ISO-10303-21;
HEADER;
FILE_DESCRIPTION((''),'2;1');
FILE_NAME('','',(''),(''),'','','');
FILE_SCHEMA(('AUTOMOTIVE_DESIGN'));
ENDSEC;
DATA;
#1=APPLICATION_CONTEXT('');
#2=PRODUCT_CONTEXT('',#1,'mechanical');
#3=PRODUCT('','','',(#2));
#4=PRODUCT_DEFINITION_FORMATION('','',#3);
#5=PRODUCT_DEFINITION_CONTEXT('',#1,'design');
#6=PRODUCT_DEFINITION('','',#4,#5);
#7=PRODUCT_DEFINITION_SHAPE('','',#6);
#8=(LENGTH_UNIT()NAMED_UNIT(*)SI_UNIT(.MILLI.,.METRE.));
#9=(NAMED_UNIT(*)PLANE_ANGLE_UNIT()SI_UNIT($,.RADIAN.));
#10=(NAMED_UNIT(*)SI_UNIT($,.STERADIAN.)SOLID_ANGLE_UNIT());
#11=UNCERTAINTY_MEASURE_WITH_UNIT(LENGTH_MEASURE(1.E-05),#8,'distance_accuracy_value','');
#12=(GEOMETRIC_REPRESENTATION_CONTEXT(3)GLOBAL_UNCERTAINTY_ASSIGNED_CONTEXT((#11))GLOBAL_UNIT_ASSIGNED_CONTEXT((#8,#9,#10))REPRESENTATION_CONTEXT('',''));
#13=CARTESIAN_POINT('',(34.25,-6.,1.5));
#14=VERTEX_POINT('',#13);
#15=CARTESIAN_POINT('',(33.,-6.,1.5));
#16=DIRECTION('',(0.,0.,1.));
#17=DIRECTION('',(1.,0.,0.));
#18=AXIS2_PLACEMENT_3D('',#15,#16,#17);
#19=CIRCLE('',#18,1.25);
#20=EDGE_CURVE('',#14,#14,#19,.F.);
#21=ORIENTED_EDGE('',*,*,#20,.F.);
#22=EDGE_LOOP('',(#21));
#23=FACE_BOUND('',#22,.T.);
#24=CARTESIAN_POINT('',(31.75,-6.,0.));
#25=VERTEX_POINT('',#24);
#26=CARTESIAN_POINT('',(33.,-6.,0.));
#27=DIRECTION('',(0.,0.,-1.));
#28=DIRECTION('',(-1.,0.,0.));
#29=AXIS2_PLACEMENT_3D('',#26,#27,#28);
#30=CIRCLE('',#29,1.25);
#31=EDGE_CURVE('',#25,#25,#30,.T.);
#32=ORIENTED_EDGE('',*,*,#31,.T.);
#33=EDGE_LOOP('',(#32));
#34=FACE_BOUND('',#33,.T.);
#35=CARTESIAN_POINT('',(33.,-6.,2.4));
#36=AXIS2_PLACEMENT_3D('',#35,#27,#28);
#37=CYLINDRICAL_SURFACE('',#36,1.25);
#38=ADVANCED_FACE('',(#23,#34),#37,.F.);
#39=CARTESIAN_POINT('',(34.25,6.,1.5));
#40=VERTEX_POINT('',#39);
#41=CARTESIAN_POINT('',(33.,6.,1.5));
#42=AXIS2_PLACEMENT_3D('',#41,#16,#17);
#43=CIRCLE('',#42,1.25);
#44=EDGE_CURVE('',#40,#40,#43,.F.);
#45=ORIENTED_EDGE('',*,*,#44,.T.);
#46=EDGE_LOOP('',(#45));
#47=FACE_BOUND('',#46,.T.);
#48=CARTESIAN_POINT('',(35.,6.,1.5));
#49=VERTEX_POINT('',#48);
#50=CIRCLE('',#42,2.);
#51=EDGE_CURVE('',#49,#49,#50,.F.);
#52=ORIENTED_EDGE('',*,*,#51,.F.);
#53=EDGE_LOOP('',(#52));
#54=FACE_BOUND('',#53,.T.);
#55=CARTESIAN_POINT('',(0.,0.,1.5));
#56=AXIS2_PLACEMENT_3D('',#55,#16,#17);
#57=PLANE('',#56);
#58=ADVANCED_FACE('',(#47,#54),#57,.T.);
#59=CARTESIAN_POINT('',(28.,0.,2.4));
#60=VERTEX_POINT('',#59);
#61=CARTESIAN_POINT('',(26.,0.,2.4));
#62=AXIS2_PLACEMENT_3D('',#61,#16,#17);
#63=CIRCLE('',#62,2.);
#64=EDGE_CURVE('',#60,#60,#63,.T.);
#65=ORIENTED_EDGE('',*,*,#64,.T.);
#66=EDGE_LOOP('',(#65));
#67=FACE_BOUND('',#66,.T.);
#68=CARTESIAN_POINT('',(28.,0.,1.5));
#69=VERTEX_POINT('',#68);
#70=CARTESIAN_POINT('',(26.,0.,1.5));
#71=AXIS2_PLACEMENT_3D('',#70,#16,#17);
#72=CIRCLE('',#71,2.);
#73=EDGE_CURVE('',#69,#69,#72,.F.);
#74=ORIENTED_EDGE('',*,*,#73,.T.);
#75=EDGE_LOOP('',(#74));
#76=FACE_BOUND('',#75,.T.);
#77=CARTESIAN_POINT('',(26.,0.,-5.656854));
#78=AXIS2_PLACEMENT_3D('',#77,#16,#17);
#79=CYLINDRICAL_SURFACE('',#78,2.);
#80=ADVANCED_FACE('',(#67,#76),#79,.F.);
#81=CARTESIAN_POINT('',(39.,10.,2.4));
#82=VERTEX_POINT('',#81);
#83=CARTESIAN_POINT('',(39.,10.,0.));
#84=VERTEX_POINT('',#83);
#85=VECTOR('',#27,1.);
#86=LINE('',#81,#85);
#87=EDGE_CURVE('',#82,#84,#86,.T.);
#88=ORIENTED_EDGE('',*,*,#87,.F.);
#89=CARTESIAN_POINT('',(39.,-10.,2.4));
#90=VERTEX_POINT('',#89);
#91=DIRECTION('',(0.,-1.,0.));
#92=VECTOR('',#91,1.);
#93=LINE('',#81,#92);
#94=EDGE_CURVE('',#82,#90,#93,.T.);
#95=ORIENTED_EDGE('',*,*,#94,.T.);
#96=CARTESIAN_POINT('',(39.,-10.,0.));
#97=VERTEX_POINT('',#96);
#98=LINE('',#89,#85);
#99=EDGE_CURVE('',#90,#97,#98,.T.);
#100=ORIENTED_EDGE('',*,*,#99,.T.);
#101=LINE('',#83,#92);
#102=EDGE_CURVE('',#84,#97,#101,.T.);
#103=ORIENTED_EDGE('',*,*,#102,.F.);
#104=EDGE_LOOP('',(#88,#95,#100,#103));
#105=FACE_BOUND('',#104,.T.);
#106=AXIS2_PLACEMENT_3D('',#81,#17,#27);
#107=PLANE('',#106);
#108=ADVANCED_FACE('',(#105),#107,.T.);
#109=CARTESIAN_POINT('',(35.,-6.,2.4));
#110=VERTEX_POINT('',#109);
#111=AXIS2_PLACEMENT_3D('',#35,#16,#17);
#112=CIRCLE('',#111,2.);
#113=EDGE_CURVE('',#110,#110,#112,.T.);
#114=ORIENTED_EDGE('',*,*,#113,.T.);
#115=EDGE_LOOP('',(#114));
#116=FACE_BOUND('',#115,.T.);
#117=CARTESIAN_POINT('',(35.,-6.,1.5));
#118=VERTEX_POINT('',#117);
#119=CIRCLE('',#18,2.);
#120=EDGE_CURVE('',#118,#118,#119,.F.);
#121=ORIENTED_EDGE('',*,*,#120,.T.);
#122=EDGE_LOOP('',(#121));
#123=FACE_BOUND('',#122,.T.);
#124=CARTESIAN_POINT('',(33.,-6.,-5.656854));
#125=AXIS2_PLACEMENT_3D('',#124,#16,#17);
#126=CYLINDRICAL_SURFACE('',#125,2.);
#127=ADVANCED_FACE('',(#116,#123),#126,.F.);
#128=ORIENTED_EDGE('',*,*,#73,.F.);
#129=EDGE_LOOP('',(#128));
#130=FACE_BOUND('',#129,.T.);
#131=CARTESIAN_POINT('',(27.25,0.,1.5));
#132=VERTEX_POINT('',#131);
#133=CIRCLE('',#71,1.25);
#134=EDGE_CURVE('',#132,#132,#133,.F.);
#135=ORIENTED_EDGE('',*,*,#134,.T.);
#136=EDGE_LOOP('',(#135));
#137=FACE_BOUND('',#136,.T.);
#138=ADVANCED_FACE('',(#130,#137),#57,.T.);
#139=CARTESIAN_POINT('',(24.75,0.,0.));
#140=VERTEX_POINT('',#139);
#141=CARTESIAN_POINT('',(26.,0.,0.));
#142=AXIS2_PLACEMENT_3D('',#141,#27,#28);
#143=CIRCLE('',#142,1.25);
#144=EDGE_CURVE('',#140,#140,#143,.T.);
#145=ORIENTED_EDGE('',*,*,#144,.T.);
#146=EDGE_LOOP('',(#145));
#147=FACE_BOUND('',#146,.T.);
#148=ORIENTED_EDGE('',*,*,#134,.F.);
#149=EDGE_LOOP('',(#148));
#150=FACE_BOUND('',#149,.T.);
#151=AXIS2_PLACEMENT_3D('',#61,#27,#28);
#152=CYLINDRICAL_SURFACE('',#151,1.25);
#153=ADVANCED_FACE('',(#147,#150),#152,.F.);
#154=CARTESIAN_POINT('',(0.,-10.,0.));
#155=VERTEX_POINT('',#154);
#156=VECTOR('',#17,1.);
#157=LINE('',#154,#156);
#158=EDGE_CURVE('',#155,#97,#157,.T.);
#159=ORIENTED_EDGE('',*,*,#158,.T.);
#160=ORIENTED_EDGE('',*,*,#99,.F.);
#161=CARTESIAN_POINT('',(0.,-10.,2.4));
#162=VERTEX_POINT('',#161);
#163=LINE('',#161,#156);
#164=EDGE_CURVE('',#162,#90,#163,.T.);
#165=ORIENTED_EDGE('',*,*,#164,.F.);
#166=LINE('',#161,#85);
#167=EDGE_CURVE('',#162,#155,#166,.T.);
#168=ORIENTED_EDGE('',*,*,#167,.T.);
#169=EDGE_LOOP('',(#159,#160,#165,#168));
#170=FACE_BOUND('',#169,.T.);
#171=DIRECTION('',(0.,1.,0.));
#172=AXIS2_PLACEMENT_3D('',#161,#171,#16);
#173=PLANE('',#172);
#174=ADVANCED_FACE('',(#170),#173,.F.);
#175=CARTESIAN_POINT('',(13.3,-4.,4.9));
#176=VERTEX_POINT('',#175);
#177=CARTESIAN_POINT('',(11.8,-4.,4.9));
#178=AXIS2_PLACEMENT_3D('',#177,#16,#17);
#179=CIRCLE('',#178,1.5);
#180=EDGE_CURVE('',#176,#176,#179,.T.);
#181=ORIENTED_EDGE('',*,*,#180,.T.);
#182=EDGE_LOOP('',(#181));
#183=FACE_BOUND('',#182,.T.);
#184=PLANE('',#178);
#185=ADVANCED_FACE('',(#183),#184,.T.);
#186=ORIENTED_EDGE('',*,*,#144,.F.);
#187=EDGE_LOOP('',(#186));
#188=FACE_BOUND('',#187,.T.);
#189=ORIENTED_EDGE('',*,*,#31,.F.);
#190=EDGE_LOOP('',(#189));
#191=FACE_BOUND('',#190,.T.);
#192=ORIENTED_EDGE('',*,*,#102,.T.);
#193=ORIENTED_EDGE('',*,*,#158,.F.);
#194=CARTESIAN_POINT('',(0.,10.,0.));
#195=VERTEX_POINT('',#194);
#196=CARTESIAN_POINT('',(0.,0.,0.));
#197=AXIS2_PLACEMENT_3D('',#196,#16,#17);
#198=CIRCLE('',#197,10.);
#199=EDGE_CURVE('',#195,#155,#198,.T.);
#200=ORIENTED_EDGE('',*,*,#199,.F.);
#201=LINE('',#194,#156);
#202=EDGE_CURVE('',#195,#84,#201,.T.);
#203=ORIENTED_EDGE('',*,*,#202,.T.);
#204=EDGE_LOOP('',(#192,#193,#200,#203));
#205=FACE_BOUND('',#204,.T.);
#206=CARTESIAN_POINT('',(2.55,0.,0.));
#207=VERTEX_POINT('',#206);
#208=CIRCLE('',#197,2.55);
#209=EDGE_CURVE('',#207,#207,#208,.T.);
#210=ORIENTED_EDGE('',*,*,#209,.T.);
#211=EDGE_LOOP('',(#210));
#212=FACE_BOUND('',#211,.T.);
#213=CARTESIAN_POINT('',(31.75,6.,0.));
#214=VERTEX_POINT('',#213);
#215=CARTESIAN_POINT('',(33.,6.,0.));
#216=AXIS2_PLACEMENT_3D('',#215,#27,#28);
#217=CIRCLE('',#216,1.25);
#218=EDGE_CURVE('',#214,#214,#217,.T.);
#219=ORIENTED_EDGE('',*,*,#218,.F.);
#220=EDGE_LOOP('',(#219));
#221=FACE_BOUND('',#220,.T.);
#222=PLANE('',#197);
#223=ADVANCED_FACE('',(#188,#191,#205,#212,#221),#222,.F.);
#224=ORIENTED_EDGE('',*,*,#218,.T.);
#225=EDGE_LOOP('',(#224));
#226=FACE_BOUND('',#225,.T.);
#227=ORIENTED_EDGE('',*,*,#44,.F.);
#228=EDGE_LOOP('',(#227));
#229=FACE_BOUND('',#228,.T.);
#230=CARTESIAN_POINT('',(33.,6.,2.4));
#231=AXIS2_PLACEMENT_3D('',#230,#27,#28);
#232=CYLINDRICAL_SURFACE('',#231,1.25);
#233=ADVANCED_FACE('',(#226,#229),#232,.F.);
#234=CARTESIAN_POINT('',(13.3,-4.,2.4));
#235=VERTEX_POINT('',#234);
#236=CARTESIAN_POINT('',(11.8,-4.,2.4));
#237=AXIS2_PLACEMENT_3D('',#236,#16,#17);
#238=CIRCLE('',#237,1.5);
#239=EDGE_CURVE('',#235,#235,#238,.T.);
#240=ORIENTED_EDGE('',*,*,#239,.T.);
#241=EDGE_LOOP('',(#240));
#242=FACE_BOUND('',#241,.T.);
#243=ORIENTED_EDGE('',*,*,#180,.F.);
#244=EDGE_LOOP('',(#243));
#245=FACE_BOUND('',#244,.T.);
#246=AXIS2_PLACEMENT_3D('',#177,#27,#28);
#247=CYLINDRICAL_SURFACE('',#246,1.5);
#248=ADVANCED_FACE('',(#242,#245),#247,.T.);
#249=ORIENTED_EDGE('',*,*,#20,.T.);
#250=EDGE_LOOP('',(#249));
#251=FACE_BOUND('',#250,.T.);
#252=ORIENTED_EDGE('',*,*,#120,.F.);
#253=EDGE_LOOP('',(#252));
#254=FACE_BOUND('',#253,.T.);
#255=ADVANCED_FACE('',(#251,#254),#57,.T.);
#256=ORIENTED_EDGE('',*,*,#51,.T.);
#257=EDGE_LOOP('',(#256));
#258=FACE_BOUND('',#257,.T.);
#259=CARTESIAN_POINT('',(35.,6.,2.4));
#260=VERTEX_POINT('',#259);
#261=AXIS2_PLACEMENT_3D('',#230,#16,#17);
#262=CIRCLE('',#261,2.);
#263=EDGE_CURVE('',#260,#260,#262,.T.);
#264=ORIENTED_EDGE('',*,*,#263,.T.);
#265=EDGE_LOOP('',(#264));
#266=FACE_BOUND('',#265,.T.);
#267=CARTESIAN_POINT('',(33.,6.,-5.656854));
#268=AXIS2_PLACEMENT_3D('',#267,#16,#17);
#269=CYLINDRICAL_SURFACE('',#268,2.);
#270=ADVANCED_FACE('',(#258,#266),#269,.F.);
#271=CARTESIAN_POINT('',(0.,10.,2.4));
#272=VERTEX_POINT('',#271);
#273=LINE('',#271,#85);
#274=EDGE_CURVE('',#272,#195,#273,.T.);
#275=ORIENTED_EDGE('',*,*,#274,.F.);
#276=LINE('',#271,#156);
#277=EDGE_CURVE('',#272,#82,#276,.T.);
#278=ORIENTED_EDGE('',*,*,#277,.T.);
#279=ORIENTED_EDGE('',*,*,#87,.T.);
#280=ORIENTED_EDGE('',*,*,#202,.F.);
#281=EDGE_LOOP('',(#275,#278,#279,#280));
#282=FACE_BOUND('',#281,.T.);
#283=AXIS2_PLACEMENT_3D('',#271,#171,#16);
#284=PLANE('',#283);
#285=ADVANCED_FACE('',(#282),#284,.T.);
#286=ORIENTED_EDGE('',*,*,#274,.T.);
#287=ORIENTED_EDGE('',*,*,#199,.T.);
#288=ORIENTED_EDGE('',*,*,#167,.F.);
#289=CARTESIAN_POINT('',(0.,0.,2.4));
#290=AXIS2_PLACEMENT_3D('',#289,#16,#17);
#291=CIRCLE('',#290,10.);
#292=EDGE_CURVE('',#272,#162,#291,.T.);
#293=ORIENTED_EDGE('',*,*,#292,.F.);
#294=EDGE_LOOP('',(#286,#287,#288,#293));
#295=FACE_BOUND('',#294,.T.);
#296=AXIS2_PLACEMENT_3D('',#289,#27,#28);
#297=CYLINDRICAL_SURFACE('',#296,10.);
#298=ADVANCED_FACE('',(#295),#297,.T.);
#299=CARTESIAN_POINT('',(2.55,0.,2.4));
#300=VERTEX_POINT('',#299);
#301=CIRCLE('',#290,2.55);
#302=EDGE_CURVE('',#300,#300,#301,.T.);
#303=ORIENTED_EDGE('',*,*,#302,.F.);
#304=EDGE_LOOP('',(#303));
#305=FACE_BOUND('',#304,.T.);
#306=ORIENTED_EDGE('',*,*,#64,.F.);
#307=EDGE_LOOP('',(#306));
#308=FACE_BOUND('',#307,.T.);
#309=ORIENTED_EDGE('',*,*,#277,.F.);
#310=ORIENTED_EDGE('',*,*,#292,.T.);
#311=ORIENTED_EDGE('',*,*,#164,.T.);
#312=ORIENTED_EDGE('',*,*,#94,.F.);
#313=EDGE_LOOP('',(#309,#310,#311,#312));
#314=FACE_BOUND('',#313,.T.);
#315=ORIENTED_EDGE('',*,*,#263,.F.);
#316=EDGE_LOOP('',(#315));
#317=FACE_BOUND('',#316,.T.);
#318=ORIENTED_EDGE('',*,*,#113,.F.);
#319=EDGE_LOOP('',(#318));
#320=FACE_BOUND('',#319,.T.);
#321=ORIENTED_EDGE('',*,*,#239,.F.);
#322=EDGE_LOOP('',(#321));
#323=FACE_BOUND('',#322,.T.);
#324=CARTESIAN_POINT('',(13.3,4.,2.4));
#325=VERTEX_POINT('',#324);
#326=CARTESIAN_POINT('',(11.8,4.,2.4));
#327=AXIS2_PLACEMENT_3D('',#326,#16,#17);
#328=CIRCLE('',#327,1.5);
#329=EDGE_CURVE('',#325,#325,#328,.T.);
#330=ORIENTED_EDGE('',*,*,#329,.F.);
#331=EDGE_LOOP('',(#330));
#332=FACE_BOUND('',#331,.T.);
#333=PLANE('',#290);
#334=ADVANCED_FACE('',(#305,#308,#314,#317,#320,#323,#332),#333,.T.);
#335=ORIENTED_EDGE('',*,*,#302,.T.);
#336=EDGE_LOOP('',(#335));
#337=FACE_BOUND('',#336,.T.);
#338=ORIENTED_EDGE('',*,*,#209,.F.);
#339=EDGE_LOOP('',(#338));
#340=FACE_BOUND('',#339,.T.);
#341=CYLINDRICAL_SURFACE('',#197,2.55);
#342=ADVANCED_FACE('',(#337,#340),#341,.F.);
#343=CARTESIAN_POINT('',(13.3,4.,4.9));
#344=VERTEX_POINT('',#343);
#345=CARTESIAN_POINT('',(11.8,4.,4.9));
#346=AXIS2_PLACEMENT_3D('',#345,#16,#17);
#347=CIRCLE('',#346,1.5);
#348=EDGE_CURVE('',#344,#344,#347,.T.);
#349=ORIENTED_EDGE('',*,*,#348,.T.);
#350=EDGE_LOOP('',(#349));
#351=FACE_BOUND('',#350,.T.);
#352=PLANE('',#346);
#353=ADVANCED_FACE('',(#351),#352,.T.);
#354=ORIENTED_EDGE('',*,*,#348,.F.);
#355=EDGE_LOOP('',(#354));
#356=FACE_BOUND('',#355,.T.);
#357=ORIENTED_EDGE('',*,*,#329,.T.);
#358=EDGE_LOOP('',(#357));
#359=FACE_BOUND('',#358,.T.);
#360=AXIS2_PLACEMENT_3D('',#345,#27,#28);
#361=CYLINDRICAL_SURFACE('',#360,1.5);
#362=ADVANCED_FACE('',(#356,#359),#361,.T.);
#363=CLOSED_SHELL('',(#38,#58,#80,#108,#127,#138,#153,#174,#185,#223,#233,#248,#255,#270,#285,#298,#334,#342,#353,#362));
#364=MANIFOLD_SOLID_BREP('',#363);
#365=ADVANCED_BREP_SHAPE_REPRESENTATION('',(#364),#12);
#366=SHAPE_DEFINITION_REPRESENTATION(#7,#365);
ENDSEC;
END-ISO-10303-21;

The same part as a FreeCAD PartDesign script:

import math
import FreeCAD as App
import Part
import Sketcher
Q = App.Units.Quantity

doc = App.newDocument("Part")
body = doc.addObject("PartDesign::Body", "Body")

sketch1 = doc.addObject("Sketcher::SketchObject", "Sketch")
body.addObject(sketch1)
sketch1.AttachmentSupport = (doc.XY_Plane, [""])
sketch1.MapMode = "FlatFace"
sketch1.addGeometry([
    Part.LineSegment(App.Vector(0, -10, 0), App.Vector(39, -10, 0)),
    Part.LineSegment(App.Vector(39, -10, 0), App.Vector(39, 10, 0)),
    Part.LineSegment(App.Vector(39, 10, 0), App.Vector(0, 10, 0)),
    Part.ArcOfCircle(Part.Circle(App.Vector(0, 0, 0), App.Vector(0, 0, 1), 10), math.radians(90), math.radians(270)),
], False)
sketch1.addConstraint([
    Sketcher.Constraint("Coincident", 0, 2, 1, 1),
    Sketcher.Constraint("Coincident", 1, 2, 2, 1),
    Sketcher.Constraint("Tangent", 2, 2, 3, 1),
    Sketcher.Constraint("Tangent", 3, 2, 0, 1),
    Sketcher.Constraint("Horizontal", 0),
    Sketcher.Constraint("Vertical", 1),
    Sketcher.Constraint("Horizontal", 2),
    Sketcher.Constraint("Coincident", 3, 3, -1, 1),
    Sketcher.Constraint("Radius", 3, Q("10 mm")),
    Sketcher.Constraint("DistanceX", 0, 1, 0, 2, Q("39 mm")),
])
pad1 = doc.addObject("PartDesign::Pad", "Pad")
body.addObject(pad1)
pad1.Profile = sketch1
pad1.Length = 2.4

sketch2 = doc.addObject("Sketcher::SketchObject", "Sketch001")
body.addObject(sketch2)
sketch2.AttachmentSupport = (doc.XY_Plane, [""])
sketch2.MapMode = "FlatFace"
sketch2.addGeometry([
    Part.Circle(App.Vector(33, 6, 0), App.Vector(0, 0, 1), 1.2),
    Part.Circle(App.Vector(33, -6, 0), App.Vector(0, 0, 1), 1.2),
    Part.Circle(App.Vector(26, 0, 0), App.Vector(0, 0, 1), 1.2),
], False)
sketch2.addConstraint([
    Sketcher.Constraint("Equal", 0, 1),
    Sketcher.Constraint("Equal", 1, 2),
    Sketcher.Constraint("Symmetric", 0, 3, 1, 3, -1),
    Sketcher.Constraint("PointOnObject", 2, 3, -1),
    Sketcher.Constraint("Diameter", 0, Q("2.5 mm")),
    Sketcher.Constraint("DistanceX", -1, 1, 0, 3, Q("33 mm")),
    Sketcher.Constraint("DistanceY", -1, 1, 0, 3, Q("6 mm")),
    Sketcher.Constraint("DistanceX", -1, 1, 2, 3, Q("26 mm")),
])
pocket1 = doc.addObject("PartDesign::Pocket", "Pocket")
body.addObject(pocket1)
pocket1.Profile = sketch2
pocket1.Type = "ThroughAll"
pocket1.Reversed = True

sketch3 = doc.addObject("Sketcher::SketchObject", "Sketch002")
body.addObject(sketch3)
sketch3.AttachmentSupport = (doc.XY_Plane, [""])
sketch3.MapMode = "FlatFace"
sketch3.AttachmentOffset = App.Placement(App.Vector(0, 0, 1.5), App.Rotation())
sketch3.addGeometry([
    Part.Circle(App.Vector(33, 6, 0), App.Vector(0, 0, 1), 2),
    Part.Circle(App.Vector(33, 6, 0), App.Vector(0, 0, 1), 1.2),
    Part.Circle(App.Vector(33, -6, 0), App.Vector(0, 0, 1), 2),
    Part.Circle(App.Vector(33, -6, 0), App.Vector(0, 0, 1), 1.2),
    Part.Circle(App.Vector(26, 0, 0), App.Vector(0, 0, 1), 2),
    Part.Circle(App.Vector(26, 0, 0), App.Vector(0, 0, 1), 1.2),
], False)
sketch3.addConstraint([
    Sketcher.Constraint("Coincident", 1, 3, 0, 3),
    Sketcher.Constraint("Coincident", 3, 3, 2, 3),
    Sketcher.Constraint("Coincident", 5, 3, 4, 3),
    Sketcher.Constraint("Equal", 0, 2),
    Sketcher.Constraint("Equal", 1, 3),
    Sketcher.Constraint("Equal", 2, 4),
    Sketcher.Constraint("Equal", 3, 5),
    Sketcher.Constraint("Symmetric", 0, 3, 2, 3, -1),
    Sketcher.Constraint("PointOnObject", 4, 3, -1),
    Sketcher.Constraint("Diameter", 0, Q("4 mm")),
    Sketcher.Constraint("Diameter", 1, Q("2.5 mm")),
    Sketcher.Constraint("DistanceX", -1, 1, 0, 3, Q("33 mm")),
    Sketcher.Constraint("DistanceY", -1, 1, 0, 3, Q("6 mm")),
    Sketcher.Constraint("DistanceX", -1, 1, 4, 3, Q("26 mm")),
])
pocket2 = doc.addObject("PartDesign::Pocket", "Pocket001")
body.addObject(pocket2)
pocket2.Profile = sketch3
pocket2.Length = 0.9
pocket2.Reversed = True

sketch4 = doc.addObject("Sketcher::SketchObject", "Sketch003")
body.addObject(sketch4)
sketch4.AttachmentSupport = (doc.XY_Plane, [""])
sketch4.MapMode = "FlatFace"
sketch4.AttachmentOffset = App.Placement(App.Vector(0, 0, 2.4), App.Rotation())
sketch4.addGeometry(Part.Circle(App.Vector(0, 0, 0), App.Vector(0, 0, 1), 2.5), False)
sketch4.addConstraint([
    Sketcher.Constraint("Coincident", 0, 3, -1, 1),
    Sketcher.Constraint("Diameter", 0, Q("5.1 mm")),
])
pocket3 = doc.addObject("PartDesign::Pocket", "Pocket002")
body.addObject(pocket3)
pocket3.Profile = sketch4
pocket3.Type = "ThroughAll"

sketch5 = doc.addObject("Sketcher::SketchObject", "Sketch004")
body.addObject(sketch5)
sketch5.AttachmentSupport = (doc.XY_Plane, [""])
sketch5.MapMode = "FlatFace"
sketch5.AttachmentOffset = App.Placement(App.Vector(0, 0, 2.4), App.Rotation())
sketch5.addGeometry([
    Part.Circle(App.Vector(11.8, -4, 0), App.Vector(0, 0, 1), 1.5),
    Part.Circle(App.Vector(11.8, 4, 0), App.Vector(0, 0, 1), 1.5),
], False)
sketch5.addConstraint([
    Sketcher.Constraint("Equal", 0, 1),
    Sketcher.Constraint("Symmetric", 0, 3, 1, 3, -1),
    Sketcher.Constraint("Diameter", 0, Q("3 mm")),
    Sketcher.Constraint("DistanceY", 0, 3, -1, 1, Q("4 mm")),
    Sketcher.Constraint("DistanceX", -1, 1, 0, 3, Q("11.8 mm")),
])
pad2 = doc.addObject("PartDesign::Pad", "Pad001")
body.addObject(pad2)
pad2.Profile = sketch5
pad2.Length = 2.5

doc.recompute()
